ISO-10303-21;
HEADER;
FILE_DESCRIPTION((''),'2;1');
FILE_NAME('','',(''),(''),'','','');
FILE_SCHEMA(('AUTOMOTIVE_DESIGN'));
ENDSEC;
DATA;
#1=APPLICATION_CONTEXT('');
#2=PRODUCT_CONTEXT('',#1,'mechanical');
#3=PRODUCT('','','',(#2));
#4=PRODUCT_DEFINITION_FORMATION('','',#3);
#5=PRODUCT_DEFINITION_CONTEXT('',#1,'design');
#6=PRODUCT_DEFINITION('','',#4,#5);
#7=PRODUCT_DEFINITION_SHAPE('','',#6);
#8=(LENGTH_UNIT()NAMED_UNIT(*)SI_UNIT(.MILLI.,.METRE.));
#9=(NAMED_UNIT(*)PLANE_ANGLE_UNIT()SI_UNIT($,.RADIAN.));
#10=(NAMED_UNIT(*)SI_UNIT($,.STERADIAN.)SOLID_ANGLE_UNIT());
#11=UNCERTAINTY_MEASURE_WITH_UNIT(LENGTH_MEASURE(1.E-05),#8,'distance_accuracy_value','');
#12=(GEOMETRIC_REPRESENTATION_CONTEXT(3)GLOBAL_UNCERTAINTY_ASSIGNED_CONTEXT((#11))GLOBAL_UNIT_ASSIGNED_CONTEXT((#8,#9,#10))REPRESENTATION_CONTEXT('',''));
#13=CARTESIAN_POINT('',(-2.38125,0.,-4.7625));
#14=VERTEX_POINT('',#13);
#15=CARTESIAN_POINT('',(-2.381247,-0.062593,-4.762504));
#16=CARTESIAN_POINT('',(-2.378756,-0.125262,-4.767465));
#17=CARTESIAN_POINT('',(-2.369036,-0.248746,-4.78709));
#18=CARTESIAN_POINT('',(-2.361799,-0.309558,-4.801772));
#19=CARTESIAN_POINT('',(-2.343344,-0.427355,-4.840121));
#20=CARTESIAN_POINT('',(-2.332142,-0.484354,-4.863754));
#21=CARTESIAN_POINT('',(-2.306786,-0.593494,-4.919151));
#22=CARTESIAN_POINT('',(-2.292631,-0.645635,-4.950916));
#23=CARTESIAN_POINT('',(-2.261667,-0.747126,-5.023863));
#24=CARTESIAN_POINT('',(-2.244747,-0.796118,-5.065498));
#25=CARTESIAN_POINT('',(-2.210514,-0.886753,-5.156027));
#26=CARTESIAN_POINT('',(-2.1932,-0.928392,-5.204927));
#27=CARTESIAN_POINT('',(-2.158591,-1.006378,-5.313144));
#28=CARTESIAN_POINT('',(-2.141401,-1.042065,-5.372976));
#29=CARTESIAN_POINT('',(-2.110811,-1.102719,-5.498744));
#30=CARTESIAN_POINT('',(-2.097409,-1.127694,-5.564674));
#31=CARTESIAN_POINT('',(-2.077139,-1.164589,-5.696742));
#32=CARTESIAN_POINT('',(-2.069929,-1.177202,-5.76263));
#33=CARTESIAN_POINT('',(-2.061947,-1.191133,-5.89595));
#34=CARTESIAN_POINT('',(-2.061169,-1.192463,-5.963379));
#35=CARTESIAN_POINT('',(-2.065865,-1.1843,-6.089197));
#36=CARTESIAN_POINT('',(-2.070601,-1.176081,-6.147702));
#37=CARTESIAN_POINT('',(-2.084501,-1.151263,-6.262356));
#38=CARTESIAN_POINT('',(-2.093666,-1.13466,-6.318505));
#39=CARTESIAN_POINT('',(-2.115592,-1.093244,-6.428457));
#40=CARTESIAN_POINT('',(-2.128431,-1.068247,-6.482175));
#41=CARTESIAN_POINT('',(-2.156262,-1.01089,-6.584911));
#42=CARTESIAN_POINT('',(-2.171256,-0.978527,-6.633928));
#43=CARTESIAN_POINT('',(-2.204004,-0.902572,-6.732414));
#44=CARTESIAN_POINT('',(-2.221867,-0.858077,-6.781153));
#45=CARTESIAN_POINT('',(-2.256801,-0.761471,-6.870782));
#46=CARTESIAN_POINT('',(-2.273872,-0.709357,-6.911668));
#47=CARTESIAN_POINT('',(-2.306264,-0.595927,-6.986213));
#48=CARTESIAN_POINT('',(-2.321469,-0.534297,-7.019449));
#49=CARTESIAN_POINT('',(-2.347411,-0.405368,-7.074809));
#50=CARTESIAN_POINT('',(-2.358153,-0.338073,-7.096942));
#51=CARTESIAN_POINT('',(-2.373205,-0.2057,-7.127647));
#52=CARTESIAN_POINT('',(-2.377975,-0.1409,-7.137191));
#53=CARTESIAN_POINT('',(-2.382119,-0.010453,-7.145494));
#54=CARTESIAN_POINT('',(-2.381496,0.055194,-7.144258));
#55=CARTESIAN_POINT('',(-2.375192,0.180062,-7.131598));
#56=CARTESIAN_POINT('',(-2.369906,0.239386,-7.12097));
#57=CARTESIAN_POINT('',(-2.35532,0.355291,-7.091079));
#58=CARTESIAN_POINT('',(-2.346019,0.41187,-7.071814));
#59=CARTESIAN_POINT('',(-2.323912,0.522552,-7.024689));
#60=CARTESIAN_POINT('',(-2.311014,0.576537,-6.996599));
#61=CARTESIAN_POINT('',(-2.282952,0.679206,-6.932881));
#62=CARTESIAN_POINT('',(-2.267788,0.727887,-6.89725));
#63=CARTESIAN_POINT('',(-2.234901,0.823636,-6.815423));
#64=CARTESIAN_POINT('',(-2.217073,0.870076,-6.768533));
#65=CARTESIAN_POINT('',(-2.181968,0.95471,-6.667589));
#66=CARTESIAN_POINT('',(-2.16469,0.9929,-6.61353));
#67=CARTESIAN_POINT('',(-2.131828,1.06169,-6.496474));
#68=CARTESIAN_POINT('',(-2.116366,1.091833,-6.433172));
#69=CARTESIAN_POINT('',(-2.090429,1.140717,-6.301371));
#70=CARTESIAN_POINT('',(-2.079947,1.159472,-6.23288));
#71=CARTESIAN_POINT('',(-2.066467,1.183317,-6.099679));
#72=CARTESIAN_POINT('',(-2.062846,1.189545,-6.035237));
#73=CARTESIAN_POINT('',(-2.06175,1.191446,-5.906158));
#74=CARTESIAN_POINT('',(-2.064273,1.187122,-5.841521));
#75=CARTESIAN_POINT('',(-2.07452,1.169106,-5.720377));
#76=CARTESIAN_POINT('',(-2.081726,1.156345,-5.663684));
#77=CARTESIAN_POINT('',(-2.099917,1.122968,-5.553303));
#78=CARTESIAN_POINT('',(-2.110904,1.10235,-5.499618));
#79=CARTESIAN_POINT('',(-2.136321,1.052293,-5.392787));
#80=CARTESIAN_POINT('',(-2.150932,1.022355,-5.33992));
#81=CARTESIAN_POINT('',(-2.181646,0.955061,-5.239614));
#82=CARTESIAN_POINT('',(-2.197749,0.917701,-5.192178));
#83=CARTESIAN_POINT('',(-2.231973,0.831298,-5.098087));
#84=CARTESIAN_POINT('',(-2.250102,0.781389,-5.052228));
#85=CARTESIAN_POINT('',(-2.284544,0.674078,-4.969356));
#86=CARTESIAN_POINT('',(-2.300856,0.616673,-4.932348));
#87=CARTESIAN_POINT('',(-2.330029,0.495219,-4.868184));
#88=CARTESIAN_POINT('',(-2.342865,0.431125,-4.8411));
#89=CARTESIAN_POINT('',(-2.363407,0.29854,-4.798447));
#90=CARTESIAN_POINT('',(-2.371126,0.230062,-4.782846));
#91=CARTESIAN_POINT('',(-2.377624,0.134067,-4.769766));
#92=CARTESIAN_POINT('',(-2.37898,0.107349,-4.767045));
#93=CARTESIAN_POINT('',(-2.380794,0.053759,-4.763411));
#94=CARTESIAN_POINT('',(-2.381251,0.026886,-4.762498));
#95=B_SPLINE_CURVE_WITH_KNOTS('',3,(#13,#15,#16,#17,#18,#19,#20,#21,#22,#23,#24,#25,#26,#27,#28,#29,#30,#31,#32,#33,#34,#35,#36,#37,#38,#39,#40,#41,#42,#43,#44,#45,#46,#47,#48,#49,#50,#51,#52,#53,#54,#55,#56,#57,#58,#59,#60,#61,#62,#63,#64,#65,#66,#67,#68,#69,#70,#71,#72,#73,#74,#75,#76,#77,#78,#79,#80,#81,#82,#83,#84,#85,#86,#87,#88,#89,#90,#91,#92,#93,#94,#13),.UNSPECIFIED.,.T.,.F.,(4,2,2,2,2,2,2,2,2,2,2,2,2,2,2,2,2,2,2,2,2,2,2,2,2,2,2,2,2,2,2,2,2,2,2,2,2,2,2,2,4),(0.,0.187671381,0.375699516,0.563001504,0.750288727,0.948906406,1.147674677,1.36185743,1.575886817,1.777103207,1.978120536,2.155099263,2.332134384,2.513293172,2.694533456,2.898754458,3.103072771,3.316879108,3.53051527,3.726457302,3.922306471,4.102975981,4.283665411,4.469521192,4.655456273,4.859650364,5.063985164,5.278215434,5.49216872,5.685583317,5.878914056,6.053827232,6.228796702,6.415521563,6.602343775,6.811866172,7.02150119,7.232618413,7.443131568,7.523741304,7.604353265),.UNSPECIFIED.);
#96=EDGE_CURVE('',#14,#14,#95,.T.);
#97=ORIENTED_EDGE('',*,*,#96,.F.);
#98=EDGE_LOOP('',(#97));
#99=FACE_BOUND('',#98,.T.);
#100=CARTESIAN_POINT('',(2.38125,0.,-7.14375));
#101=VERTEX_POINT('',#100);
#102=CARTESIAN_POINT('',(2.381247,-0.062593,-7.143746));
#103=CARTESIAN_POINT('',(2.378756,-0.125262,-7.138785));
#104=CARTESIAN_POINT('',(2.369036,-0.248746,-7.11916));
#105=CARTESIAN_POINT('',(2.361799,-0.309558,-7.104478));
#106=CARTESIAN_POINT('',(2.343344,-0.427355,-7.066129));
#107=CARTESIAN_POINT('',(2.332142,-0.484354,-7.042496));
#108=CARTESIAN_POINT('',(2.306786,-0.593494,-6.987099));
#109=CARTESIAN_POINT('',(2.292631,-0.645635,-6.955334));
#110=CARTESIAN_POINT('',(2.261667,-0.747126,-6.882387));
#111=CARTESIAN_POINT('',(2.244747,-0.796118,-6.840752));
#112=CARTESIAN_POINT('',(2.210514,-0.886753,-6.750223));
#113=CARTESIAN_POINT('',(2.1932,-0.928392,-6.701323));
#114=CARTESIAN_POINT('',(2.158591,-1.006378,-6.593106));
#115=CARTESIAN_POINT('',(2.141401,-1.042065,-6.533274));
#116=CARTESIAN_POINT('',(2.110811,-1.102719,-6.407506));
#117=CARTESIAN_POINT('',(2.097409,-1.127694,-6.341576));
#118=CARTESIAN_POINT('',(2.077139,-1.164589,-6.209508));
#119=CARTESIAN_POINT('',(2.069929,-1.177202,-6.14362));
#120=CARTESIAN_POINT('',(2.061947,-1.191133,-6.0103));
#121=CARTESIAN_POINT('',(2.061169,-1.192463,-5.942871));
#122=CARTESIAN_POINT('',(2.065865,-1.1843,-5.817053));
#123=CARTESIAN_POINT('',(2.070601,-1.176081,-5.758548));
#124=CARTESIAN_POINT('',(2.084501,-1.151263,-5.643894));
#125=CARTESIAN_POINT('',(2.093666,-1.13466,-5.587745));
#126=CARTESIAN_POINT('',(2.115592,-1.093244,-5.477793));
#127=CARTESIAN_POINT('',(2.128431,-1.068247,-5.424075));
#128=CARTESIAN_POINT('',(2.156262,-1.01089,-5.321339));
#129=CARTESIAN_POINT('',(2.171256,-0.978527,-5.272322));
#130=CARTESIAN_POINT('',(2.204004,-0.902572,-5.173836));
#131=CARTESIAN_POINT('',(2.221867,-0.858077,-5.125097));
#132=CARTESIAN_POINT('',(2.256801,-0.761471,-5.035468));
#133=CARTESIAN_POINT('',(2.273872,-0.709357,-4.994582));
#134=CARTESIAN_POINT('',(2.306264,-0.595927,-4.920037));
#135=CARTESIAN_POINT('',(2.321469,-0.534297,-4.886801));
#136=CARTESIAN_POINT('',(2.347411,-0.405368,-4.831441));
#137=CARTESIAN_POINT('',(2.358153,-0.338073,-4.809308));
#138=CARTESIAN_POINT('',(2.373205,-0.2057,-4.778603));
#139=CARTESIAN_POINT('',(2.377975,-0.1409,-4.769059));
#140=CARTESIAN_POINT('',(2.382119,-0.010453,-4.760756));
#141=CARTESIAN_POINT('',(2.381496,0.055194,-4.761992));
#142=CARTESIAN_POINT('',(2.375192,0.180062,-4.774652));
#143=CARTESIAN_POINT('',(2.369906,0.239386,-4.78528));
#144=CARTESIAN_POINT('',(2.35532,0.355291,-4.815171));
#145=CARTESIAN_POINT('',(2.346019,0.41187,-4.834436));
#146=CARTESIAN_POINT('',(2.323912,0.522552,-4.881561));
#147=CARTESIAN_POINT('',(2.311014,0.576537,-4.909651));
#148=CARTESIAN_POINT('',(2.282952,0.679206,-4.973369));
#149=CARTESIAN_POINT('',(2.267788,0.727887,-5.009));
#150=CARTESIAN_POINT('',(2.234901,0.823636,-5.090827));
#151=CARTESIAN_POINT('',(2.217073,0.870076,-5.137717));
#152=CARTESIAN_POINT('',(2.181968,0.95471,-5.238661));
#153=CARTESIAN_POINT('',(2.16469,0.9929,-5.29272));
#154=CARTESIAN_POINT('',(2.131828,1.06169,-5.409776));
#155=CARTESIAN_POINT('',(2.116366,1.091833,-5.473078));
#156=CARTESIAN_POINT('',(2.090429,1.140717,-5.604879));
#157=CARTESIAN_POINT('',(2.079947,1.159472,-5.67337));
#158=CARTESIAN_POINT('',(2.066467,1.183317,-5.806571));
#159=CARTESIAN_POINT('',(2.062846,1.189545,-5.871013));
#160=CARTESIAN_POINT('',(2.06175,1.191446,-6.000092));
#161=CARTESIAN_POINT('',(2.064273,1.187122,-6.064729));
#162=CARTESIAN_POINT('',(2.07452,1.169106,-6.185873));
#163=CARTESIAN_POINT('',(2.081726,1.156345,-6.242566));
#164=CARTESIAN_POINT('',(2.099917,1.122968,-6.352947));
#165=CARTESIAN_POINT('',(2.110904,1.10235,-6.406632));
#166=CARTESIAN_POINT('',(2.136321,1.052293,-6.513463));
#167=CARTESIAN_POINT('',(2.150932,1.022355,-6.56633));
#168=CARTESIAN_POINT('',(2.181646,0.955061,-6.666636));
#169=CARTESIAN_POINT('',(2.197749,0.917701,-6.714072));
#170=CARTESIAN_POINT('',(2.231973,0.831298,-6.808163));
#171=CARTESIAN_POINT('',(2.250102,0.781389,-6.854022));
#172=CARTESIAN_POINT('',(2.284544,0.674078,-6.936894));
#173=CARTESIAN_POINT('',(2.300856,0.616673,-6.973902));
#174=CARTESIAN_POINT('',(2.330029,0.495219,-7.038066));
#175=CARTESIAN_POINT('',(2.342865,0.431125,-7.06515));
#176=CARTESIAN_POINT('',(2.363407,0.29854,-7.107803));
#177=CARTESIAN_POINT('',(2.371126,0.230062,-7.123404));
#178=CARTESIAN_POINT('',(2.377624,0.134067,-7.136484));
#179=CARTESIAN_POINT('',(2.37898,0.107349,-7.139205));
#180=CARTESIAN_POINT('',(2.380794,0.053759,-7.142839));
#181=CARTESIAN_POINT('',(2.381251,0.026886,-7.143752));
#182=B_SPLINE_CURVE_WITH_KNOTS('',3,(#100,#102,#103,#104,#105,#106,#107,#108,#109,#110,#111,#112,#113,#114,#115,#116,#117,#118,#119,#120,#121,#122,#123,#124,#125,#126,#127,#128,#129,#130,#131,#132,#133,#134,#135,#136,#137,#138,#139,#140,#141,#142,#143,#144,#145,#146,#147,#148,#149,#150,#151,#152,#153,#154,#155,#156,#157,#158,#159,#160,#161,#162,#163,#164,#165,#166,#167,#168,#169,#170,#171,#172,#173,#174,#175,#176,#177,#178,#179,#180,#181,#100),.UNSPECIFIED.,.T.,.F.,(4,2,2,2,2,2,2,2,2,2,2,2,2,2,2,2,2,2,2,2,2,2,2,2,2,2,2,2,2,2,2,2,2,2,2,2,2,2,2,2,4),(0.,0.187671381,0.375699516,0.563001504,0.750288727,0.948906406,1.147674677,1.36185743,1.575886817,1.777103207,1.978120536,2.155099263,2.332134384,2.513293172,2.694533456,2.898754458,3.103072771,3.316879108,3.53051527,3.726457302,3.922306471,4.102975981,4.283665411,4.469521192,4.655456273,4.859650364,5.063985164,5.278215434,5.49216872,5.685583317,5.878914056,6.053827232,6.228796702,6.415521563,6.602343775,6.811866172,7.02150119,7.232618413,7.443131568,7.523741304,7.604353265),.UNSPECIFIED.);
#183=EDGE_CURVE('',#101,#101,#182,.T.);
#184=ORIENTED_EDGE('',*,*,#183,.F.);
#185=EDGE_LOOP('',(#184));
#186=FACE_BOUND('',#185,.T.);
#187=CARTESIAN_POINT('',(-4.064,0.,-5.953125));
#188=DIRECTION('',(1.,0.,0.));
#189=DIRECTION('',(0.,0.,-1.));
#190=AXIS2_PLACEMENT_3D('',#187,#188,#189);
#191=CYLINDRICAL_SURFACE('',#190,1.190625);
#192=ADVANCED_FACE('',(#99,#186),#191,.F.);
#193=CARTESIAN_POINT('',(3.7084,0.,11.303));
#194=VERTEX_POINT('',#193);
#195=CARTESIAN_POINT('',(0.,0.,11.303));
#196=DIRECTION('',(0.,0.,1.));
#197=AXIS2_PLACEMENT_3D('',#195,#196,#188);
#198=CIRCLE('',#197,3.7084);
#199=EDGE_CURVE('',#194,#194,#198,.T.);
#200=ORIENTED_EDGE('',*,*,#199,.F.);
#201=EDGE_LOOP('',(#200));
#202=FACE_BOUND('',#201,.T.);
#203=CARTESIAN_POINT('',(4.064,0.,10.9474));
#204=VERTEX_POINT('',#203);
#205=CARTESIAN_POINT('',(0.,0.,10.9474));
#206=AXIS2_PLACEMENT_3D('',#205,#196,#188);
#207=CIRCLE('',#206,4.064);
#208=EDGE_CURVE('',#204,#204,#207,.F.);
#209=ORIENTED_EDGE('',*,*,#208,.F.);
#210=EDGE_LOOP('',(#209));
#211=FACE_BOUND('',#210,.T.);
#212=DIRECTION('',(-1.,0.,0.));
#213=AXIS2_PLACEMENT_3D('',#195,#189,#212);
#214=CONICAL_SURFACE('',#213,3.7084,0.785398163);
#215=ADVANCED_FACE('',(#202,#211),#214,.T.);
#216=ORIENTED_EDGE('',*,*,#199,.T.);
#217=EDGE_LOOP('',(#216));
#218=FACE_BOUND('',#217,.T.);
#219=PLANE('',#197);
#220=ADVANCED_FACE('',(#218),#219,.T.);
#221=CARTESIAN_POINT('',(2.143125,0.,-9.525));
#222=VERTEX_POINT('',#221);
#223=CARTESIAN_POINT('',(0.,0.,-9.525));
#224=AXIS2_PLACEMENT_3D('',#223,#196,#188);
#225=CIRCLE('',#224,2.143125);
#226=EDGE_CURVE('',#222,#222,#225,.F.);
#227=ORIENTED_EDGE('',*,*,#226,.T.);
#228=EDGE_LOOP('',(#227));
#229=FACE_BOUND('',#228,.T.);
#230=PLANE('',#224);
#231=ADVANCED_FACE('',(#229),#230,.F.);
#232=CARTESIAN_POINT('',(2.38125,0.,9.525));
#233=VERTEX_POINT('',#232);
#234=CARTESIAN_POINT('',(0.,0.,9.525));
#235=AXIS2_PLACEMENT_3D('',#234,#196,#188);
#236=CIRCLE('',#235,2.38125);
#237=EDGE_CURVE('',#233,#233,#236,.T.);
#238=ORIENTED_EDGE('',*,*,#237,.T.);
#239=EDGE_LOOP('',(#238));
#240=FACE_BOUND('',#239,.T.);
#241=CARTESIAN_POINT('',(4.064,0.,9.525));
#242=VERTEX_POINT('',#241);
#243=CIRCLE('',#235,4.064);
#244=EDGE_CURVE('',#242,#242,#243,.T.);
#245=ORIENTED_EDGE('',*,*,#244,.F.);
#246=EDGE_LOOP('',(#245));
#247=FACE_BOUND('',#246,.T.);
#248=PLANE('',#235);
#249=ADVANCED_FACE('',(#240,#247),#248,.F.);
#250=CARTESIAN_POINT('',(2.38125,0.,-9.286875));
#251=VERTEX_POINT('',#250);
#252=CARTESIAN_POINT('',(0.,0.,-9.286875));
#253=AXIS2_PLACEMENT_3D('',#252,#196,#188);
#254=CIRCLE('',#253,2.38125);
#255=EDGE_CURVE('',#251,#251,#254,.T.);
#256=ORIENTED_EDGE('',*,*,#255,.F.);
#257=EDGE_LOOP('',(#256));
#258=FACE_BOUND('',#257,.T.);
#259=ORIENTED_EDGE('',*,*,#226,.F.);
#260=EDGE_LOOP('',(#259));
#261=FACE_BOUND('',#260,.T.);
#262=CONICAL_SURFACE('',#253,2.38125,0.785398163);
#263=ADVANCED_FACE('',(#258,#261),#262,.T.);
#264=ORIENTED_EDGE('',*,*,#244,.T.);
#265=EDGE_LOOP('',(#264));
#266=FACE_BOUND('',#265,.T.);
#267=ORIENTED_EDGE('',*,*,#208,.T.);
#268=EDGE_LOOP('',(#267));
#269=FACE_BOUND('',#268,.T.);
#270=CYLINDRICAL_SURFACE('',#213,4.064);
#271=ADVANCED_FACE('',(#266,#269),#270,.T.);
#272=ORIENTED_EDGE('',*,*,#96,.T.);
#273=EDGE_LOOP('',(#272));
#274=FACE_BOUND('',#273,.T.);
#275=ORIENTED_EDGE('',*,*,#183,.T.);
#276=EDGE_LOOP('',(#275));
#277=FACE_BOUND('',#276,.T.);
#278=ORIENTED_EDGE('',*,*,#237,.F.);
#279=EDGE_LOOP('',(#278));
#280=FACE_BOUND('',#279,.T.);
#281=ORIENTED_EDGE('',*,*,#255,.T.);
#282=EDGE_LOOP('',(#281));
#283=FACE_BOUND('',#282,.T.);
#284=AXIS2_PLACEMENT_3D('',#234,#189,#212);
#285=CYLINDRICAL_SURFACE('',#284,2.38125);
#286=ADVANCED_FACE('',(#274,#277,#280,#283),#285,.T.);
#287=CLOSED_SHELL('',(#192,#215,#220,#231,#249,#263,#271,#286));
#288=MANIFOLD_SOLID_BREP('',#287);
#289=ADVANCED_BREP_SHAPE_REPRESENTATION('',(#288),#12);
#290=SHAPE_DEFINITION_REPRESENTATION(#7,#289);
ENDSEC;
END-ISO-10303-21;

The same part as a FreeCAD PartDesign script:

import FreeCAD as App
import Part
import Sketcher

V = App.Vector
Q = App.Units.Quantity


def edges_at(feature, points):
    """Names of the edges that pass closest to the given points."""
    edges = feature.Shape.Edges
    near = lambda p: min(range(len(edges)), key=lambda i: edges[i].distToShape(Part.Vertex(*p))[0])
    return sorted({f"Edge{near(p) + 1}" for p in points})

doc = App.newDocument("Part")
body = doc.addObject("PartDesign::Body", "Body")

sketch1 = body.newObject("Sketcher::SketchObject", "Sketch")
sketch1.AttachmentSupport = (doc.getObject("XY_Plane"), [""])
sketch1.MapMode = "FlatFace"
sketch1.addGeometry(Part.Circle(V(0, 0, 0), V(0, 0, 1), 2.4), False)
sketch1.addConstraint(Sketcher.Constraint("Coincident", 0, 3, -1, 1))
sketch1.addConstraint(Sketcher.Constraint("Diameter", 0, Q("0.1875 in")))
pad1 = body.newObject("PartDesign::Pad", "Pad")
pad1.Profile = sketch1
pad1.Length = Q("0.75 in")
pad1.Midplane = True

sketch2 = body.newObject("Sketcher::SketchObject", "Sketch001")
sketch2.AttachmentSupport = (doc.getObject("XY_Plane"), [""])
sketch2.MapMode = "FlatFace"
sketch2.AttachmentOffset = App.Placement(V(0, 0, 0.375 * 25.4), App.Rotation())
sketch2.addGeometry(Part.Circle(V(0, 0, 0), V(0, 0, 1), 4.1), False)
sketch2.addConstraint(Sketcher.Constraint("Coincident", 0, 3, -1, 1))
sketch2.addConstraint(Sketcher.Constraint("Diameter", 0, Q("0.32 in")))
pad2 = body.newObject("PartDesign::Pad", "Pad001")
pad2.Profile = sketch2
pad2.Length = Q("0.07 in")
doc.recompute()

chamfer = body.newObject("PartDesign::Chamfer", "Chamfer")
chamfer.Base = (pad2, edges_at(pad2, [(-4.064, 0, 11.303)]))
chamfer.Size = Q("0.014 in")

sketch3 = body.newObject("Sketcher::SketchObject", "Sketch002")
sketch3.AttachmentSupport = (doc.getObject("YZ_Plane"), [""])
sketch3.MapMode = "FlatFace"
sketch3.addGeometry(Part.Circle(V(0, -6, 0), V(0, 0, 1), 1.2), False)
sketch3.addConstraint(Sketcher.Constraint("PointOnObject", 0, 3, -2))
sketch3.addConstraint(Sketcher.Constraint("Diameter", 0, Q("0.09375 in")))
sketch3.addConstraint(Sketcher.Constraint("DistanceY", 0, 3, -1, 1, Q("0.234375 in")))
pocket1 = body.newObject("PartDesign::Pocket", "Pocket")
pocket1.Profile = sketch3
pocket1.Type = "ThroughAll"
pocket1.Midplane = True
doc.recompute()

chamfer2 = body.newObject("PartDesign::Chamfer", "Chamfer001")
chamfer2.Base = (pocket1, edges_at(pocket1, [(2.381, 0, -9.525)]))
chamfer2.Size = 0.238125

doc.recompute()
